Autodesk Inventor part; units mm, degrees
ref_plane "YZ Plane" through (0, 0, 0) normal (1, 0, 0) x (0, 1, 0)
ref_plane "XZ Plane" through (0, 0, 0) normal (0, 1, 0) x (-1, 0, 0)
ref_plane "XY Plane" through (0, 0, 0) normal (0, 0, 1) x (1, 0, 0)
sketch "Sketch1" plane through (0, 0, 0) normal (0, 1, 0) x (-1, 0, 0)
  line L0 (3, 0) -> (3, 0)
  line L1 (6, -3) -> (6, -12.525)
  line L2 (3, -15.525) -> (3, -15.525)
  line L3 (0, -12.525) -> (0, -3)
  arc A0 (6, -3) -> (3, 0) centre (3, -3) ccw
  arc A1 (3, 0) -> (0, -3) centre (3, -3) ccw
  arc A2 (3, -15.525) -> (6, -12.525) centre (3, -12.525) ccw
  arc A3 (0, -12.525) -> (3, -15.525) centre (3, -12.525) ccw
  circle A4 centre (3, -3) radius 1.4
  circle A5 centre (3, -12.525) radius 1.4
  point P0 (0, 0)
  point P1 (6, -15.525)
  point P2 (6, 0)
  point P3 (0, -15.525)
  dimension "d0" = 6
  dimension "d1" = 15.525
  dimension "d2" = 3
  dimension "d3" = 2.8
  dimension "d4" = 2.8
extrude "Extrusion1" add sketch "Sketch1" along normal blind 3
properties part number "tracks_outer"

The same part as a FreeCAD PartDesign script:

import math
import FreeCAD as App
import Part
import Sketcher

V = App.Vector

doc = App.newDocument("Part")
params = doc.addObject("Spreadsheet::Sheet", "Params")
for row, (alias, value) in enumerate([
    ("sketch1_radius", "3 mm"),
    ("sketch1_diameter", "2.8 mm"),
    ("pad1_length", "3 mm"),
], start=1):
    params.set(f"A{row}", alias)
    params.set(f"B{row}", "=" + value)
    params.setAlias(f"B{row}", alias)

body = doc.addObject("PartDesign::Body", "Body")

sketch1 = body.newObject("Sketcher::SketchObject", "Sketch")
sketch1.AttachmentSupport = (doc.getObject("XZ_Plane"), [""])
sketch1.MapMode = "FlatFace"
sketch1.addGeometry(Part.LineSegment(V(-6, -12.5, 0), V(-6, -3, 0)), False)
sketch1.addGeometry(Part.ArcOfCircle(Part.Circle(V(-3, -3, 0), V(0, 0, 1), 3), math.radians(0), math.radians(180)), False)
sketch1.addGeometry(Part.LineSegment(V(0, -3, 0), V(0, -12.5, 0)), False)
sketch1.addGeometry(Part.ArcOfCircle(Part.Circle(V(-3, -12.5, 0), V(0, 0, 1), 3), math.radians(180), math.radians(360)), False)
sketch1.addGeometry(Part.Circle(V(-3, -12.5, 0), V(0, 0, 1), 1.4), False)
sketch1.addGeometry(Part.Circle(V(-3, -3, 0), V(0, 0, 1), 1.4), False)
sketch1.addConstraint(Sketcher.Constraint("Tangent", 0, 2, 1, 2))
sketch1.addConstraint(Sketcher.Constraint("Tangent", 1, 1, 2, 1))
sketch1.addConstraint(Sketcher.Constraint("Tangent", 2, 2, 3, 2))
sketch1.addConstraint(Sketcher.Constraint("Tangent", 3, 1, 0, 1))
sketch1.addConstraint(Sketcher.Constraint("Vertical", 0))
sketch1.addConstraint(Sketcher.Constraint("Vertical", 2))
sketch1.addConstraint(Sketcher.Constraint("Coincident", 4, 3, 3, 3))
sketch1.addConstraint(Sketcher.Constraint("Coincident", 5, 3, 1, 3))
sketch1.addConstraint(Sketcher.Constraint("Equal", 4, 5))
sketch1.addConstraint(Sketcher.Constraint("PointOnObject", 1, 1, -2))
sketch1.addConstraint(Sketcher.Constraint("Radius", 1, 3.0))
sketch1.addConstraint(Sketcher.Constraint("Diameter", 4, 2.8))
sketch1.addConstraint(Sketcher.Constraint("DistanceY", 1, 3, -1, 1, 3.0))
sketch1.addConstraint(Sketcher.Constraint("DistanceY", 0, 1, 0, 2, 9.525))
sketch1.setExpression("Constraints[10]", "Params.sketch1_radius")
sketch1.setExpression("Constraints[11]", "Params.sketch1_diameter")
pad1 = body.newObject("PartDesign::Pad", "Pad")
pad1.Profile = sketch1
pad1.setExpression("Length", "Params.pad1_length")
pad1.Reversed = True

doc.recompute()
